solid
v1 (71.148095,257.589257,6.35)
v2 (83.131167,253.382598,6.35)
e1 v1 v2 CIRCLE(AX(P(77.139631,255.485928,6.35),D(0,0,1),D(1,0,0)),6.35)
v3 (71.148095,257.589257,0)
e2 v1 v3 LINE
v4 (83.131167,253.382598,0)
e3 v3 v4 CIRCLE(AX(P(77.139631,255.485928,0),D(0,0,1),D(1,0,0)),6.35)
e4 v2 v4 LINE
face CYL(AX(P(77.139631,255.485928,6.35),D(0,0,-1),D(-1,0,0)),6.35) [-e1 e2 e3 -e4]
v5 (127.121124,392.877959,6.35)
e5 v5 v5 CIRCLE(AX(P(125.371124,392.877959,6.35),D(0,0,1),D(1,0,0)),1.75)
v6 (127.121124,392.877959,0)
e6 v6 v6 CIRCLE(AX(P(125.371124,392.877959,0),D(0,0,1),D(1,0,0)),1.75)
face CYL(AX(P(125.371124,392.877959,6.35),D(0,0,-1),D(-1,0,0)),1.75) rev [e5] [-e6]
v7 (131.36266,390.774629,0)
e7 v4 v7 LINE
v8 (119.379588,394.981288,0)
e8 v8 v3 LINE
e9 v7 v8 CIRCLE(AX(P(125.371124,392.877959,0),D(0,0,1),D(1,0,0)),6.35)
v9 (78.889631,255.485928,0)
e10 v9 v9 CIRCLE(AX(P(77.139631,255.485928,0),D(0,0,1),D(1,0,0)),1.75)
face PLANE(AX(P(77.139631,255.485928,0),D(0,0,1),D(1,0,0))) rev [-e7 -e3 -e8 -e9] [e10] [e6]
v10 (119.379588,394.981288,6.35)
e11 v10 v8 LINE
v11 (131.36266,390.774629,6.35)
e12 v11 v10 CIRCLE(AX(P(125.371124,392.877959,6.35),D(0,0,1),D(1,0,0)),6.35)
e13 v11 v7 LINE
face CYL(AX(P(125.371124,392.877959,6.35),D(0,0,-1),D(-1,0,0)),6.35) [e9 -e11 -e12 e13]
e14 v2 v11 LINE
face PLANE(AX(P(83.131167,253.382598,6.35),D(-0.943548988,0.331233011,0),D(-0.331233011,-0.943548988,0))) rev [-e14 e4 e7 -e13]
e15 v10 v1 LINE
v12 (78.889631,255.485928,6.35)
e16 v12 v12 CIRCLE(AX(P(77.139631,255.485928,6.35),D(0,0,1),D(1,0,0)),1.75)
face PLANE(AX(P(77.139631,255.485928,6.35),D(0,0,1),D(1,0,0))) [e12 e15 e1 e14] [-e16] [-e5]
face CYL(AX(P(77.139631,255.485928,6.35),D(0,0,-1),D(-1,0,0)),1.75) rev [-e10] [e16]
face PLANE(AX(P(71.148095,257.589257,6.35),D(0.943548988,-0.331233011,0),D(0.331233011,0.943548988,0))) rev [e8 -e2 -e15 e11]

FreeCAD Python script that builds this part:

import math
import FreeCAD as App
import Part
import Sketcher

V = App.Vector
Q = App.Units.Quantity

doc = App.newDocument("Part")
body = doc.addObject("PartDesign::Body", "Body")

sketch1 = doc.addObject("Sketcher::SketchObject", "Sketch")
body.addObject(sketch1)
sketch1.AttachmentSupport = (doc.XY_Plane, [""])
sketch1.MapMode = "FlatFace"
sketch1.addGeometry([
    Part.LineSegment(V(119.4, 395, 0), V(71.1, 257.6, 0)),
    Part.ArcOfCircle(Part.Circle(V(77.1, 255.5, 0), V(0, 0, 1), 6.3), math.radians(161), math.radians(341)),
    Part.LineSegment(V(83.1, 253.4, 0), V(131.4, 390.8, 0)),
    Part.ArcOfCircle(Part.Circle(V(125.4, 392.9, 0), V(0, 0, 1), 6.3), math.radians(-19), math.radians(161)),
    Part.Circle(V(77.1, 255.5, 0), V(0, 0, 1), 1.8),
    Part.Circle(V(125.4, 392.9, 0), V(0, 0, 1), 1.8),
], False)
sketch1.addConstraint([
    Sketcher.Constraint("Tangent", 0, 2, 1, 1),
    Sketcher.Constraint("Tangent", 1, 2, 2, 1),
    Sketcher.Constraint("Tangent", 2, 2, 3, 1),
    Sketcher.Constraint("Tangent", 3, 2, 0, 1),
    Sketcher.Constraint("Coincident", 4, 3, 1, 3),
    Sketcher.Constraint("Coincident", 5, 3, 3, 3),
    Sketcher.Constraint("Equal", 1, 3),
    Sketcher.Constraint("Equal", 4, 5),
    Sketcher.Constraint("Radius", 1, Q("0.25 in")),
    Sketcher.Constraint("Diameter", 4, Q("3.5 mm")),
    Sketcher.Constraint("DistanceY", -1, 1, 1, 2, Q("253.382598 mm")),
    Sketcher.Constraint("DistanceY", 0, 2, 3, 3, Q("135.288701 mm")),
    Sketcher.Constraint("DistanceX", -1, 1, 1, 3, Q("77.139631 mm")),
    Sketcher.Constraint("DistanceY", -1, 1, 3, 3, Q("392.877959 mm")),
])
pad1 = doc.addObject("PartDesign::Pad", "Pad")
body.addObject(pad1)
pad1.Profile = sketch1
pad1.Length = Q("0.25 in")

doc.recompute()
